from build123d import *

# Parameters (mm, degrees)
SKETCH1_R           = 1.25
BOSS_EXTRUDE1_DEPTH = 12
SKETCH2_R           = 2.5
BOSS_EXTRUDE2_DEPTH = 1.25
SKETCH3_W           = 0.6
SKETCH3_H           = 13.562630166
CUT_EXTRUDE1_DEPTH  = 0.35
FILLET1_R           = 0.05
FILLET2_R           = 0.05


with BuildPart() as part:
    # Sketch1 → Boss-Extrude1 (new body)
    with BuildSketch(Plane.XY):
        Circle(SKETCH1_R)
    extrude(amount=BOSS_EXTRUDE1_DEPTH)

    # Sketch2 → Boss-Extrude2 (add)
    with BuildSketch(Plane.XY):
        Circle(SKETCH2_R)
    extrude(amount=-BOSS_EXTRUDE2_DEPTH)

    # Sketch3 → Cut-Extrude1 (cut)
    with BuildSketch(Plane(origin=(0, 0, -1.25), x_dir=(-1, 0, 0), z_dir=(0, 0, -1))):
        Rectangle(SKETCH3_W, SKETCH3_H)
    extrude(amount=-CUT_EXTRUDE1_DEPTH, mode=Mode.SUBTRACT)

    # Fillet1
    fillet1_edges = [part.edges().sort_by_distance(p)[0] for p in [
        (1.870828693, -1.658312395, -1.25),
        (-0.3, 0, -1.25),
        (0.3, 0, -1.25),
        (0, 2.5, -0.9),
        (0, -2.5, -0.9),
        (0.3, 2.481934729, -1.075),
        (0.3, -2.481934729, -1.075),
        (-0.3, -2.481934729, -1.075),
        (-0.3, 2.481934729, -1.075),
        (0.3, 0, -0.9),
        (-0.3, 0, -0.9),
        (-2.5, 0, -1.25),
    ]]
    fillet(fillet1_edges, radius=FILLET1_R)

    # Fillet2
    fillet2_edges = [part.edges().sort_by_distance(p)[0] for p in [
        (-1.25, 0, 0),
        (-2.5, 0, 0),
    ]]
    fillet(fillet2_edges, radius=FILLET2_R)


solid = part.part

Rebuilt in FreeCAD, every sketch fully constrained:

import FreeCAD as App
import Part
import Sketcher
from FreeCAD import Vector


def edges_at(feature, points):
    """Names of the edges that pass closest to the given points."""
    edges = feature.Shape.Edges
    near = lambda p: min(range(len(edges)), key=lambda i: edges[i].distToShape(Part.Vertex(*p))[0])
    return sorted({f"Edge{near(p) + 1}" for p in points})


def add_polygon(sketch, points):
    """Adds a closed chain of lines whose ends are joined by coincident constraints."""
    first, n = sketch.GeometryCount, len(points)
    for a, b in zip(points, points[1:] + points[:1]):
        sketch.addGeometry(Part.LineSegment(App.Vector(*a, 0), App.Vector(*b, 0)), False)
    for i in range(n):
        sketch.addConstraint(Sketcher.Constraint("Coincident", first + i, 2, first + (i + 1) % n, 1))

doc = App.newDocument("Part")
body = doc.addObject("PartDesign::Body", "Body")

sketch1 = doc.addObject("Sketcher::SketchObject", "Sketch")
body.addObject(sketch1)
sketch1.AttachmentSupport = (doc.XY_Plane, [""])
sketch1.MapMode = "FlatFace"
sketch1.addGeometry(Part.Circle(Vector(0, 0, 0), Vector(0, 0, 1), 1.25), False)
sketch1.addConstraint([
    Sketcher.Constraint("Coincident", 0, 3, -1, 1),
    Sketcher.Constraint("Diameter", 0, 2.5),
])
pad1 = doc.addObject("PartDesign::Pad", "Pad")
body.addObject(pad1)
pad1.Profile = sketch1
pad1.Length = 12

sketch2 = doc.addObject("Sketcher::SketchObject", "Sketch001")
body.addObject(sketch2)
sketch2.AttachmentSupport = (doc.XY_Plane, [""])
sketch2.MapMode = "FlatFace"
sketch2.addGeometry(Part.Circle(Vector(0, 0, 0), Vector(0, 0, 1), 2.5), False)
sketch2.addConstraint([
    Sketcher.Constraint("Coincident", 0, 3, -1, 1),
    Sketcher.Constraint("Diameter", 0, 5.0),
])
pad2 = doc.addObject("PartDesign::Pad", "Pad001")
body.addObject(pad2)
pad2.Profile = sketch2
pad2.Length = 1.25
pad2.Reversed = True

sketch3 = doc.addObject("Sketcher::SketchObject", "Sketch002")
body.addObject(sketch3)
sketch3.AttachmentSupport = (doc.XY_Plane, [""])
sketch3.MapMode = "FlatFace"
sketch3.AttachmentOffset = App.Placement(Vector(0, 0, -1.25), App.Rotation())
add_polygon(sketch3, [(0.3, 6.781315), (0.3, -6.781315), (-0.3, -6.781315), (-0.3, 6.781315)])
sketch3.addConstraint([
    Sketcher.Constraint("Vertical", 0),
    Sketcher.Constraint("Horizontal", 1),
    Sketcher.Constraint("Vertical", 2),
    Sketcher.Constraint("Horizontal", 3),
    Sketcher.Constraint("Symmetric", 0, 2, 2, 2, -1, 1),
    Sketcher.Constraint("DistanceX", 1, 2, 1, 1, 0.6),
    Sketcher.Constraint("DistanceY", 0, 2, 0, 1, 13.56263),
])
pocket1 = doc.addObject("PartDesign::Pocket", "Pocket")
body.addObject(pocket1)
pocket1.Profile = sketch3
pocket1.Length = 0.35
pocket1.Reversed = True
doc.recompute()

fillet = doc.addObject("PartDesign::Fillet", "Fillet")
body.addObject(fillet)
fillet.Base = (pocket1, edges_at(pocket1, [
    (1.871, -1.658, -1.25),
    (-0.3, 0, -1.25),
    (0.3, 0, -1.25),
    (0, 2.5, -0.9),
    (0, -2.5, -0.9),
    (0.3, 2.482, -1.075),
    (0.3, -2.482, -1.075),
    (-0.3, -2.482, -1.075),
    (-0.3, 2.482, -1.075),
    (0.3, 0, -0.9),
    (-0.3, 0, -0.9),
    (-2.5, 0, -1.25),
]))
fillet.Radius = 0.05
doc.recompute()

fillet2 = doc.addObject("PartDesign::Fillet", "Fillet001")
body.addObject(fillet2)
fillet2.Base = (fillet, edges_at(fillet, [(-1.25, 0, 0), (-2.5, 0, 0)]))
fillet2.Radius = 0.05

doc.recompute()
